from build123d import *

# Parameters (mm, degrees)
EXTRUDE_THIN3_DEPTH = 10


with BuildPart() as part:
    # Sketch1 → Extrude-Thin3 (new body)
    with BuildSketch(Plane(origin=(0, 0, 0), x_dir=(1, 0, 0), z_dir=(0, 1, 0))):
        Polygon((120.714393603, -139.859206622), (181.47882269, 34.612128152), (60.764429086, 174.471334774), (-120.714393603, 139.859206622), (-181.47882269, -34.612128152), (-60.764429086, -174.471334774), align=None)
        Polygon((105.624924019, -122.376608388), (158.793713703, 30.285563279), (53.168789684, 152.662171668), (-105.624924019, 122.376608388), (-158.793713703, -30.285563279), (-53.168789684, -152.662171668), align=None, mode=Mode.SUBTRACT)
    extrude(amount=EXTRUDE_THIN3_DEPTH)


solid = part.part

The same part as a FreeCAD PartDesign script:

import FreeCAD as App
import Part
import Sketcher
from FreeCAD import Vector
Q = App.Units.Quantity

doc = App.newDocument("Part")
params = doc.addObject("Spreadsheet::Sheet", "Params")
for row, (alias, value) in enumerate([
    ("sketch1_length", "184.75 mm"),
    ("sketch1_length2", "184.75 mm"),
    ("sketch1_length3", "184.75 mm"),
    ("sketch1_length4", "184.75 mm"),
    ("sketch1_length5", "184.75 mm"),
    ("pad1_length", "10 mm"),
], start=1):
    params.set(f"A{row}", alias)
    params.set(f"B{row}", "=" + value)
    params.setAlias(f"B{row}", alias)

body = doc.addObject("PartDesign::Body", "Body")

sketch1 = doc.addObject("Sketcher::SketchObject", "Sketch")
body.addObject(sketch1)
sketch1.AttachmentSupport = (doc.XZ_Plane, [""])
sketch1.MapMode = "FlatFace"
sketch1.addGeometry(Part.LineSegment(Vector(120.714394, 139.859207, 0), Vector(181.478823, -34.612128, 0)), False)
sketch1.addGeometry(Part.LineSegment(Vector(181.478823, -34.612128, 0), Vector(60.764429, -174.471335, 0)), False)
sketch1.addGeometry(Part.LineSegment(Vector(60.764429, -174.471335, 0), Vector(-120.714394, -139.859207, 0)), False)
sketch1.addGeometry(Part.LineSegment(Vector(-120.714394, -139.859207, 0), Vector(-181.478823, 34.612128, 0)), False)
sketch1.addGeometry(Part.LineSegment(Vector(-181.478823, 34.612128, 0), Vector(-60.764429, 174.471335, 0)), False)
sketch1.addGeometry(Part.LineSegment(Vector(-60.764429, 174.471335, 0), Vector(120.714394, 139.859207, 0)), False)
sketch1.addGeometry(Part.LineSegment(Vector(158.793714, -30.285563, 0), Vector(105.624924, 122.376608, 0)), False)
sketch1.addGeometry(Part.LineSegment(Vector(105.624924, 122.376608, 0), Vector(-53.16879, 152.662172, 0)), False)
sketch1.addGeometry(Part.LineSegment(Vector(-53.16879, 152.662172, 0), Vector(-158.793714, 30.285563, 0)), False)
sketch1.addGeometry(Part.LineSegment(Vector(-158.793714, 30.285563, 0), Vector(-105.624924, -122.376608, 0)), False)
sketch1.addGeometry(Part.LineSegment(Vector(-105.624924, -122.376608, 0), Vector(53.16879, -152.662172, 0)), False)
sketch1.addGeometry(Part.LineSegment(Vector(53.16879, -152.662172, 0), Vector(158.793714, -30.285563, 0)), False)
sketch1.addConstraint(Sketcher.Constraint("Coincident", 0, 2, 1, 1))
sketch1.addConstraint(Sketcher.Constraint("Coincident", 1, 2, 2, 1))
sketch1.addConstraint(Sketcher.Constraint("Coincident", 2, 2, 3, 1))
sketch1.addConstraint(Sketcher.Constraint("Coincident", 3, 2, 4, 1))
sketch1.addConstraint(Sketcher.Constraint("Coincident", 4, 2, 5, 1))
sketch1.addConstraint(Sketcher.Constraint("Coincident", 5, 2, 0, 1))
sketch1.addConstraint(Sketcher.Constraint("Coincident", 6, 2, 7, 1))
sketch1.addConstraint(Sketcher.Constraint("Coincident", 7, 2, 8, 1))
sketch1.addConstraint(Sketcher.Constraint("Coincident", 8, 2, 9, 1))
sketch1.addConstraint(Sketcher.Constraint("Coincident", 9, 2, 10, 1))
sketch1.addConstraint(Sketcher.Constraint("Coincident", 10, 2, 11, 1))
sketch1.addConstraint(Sketcher.Constraint("Coincident", 11, 2, 6, 1))
sketch1.addConstraint(Sketcher.Constraint("Distance", 0, Q("184.75 mm")))
sketch1.addConstraint(Sketcher.Constraint("Distance", 1, Q("184.75 mm")))
sketch1.addConstraint(Sketcher.Constraint("Distance", 2, Q("184.75 mm")))
sketch1.addConstraint(Sketcher.Constraint("Distance", 3, Q("184.75 mm")))
sketch1.addConstraint(Sketcher.Constraint("Distance", 4, Q("184.75 mm")))
sketch1.addConstraint(Sketcher.Constraint("Distance", 5, Q("184.75 mm")))
sketch1.addConstraint(Sketcher.Constraint("DistanceY", 6, 2, 5, 2, Q("17.482598 mm")))
sketch1.addConstraint(Sketcher.Constraint("DistanceX", 6, 2, 0, 2, Q("75.853899 mm")))
sketch1.addConstraint(Sketcher.Constraint("DistanceY", 2, 2, 9, 2, Q("17.482598 mm")))
sketch1.addConstraint(Sketcher.Constraint("DistanceX", 3, 2, 9, 2, Q("75.853899 mm")))
sketch1.addConstraint(Sketcher.Constraint("Distance", 6, Q("161.655989 mm")))
sketch1.addConstraint(Sketcher.Constraint("Distance", 7, Q("161.655989 mm")))
sketch1.addConstraint(Sketcher.Constraint("Distance", 8, Q("161.655989 mm")))
sketch1.addConstraint(Sketcher.Constraint("Distance", 9, Q("161.655989 mm")))
sketch1.addConstraint(Sketcher.Constraint("Distance", 10, Q("161.655989 mm")))
sketch1.addConstraint(Sketcher.Constraint("Distance", 11, Q("161.655989 mm")))
sketch1.addConstraint(Sketcher.Constraint("DistanceY", 0, 2, -1, 1, Q("34.612128 mm")))
sketch1.addConstraint(Sketcher.Constraint("DistanceX", -1, 1, 1, 2, Q("60.764429 mm")))
sketch1.addConstraint(Sketcher.Constraint("DistanceY", -1, 1, 3, 2, Q("34.612128 mm")))
sketch1.addConstraint(Sketcher.Constraint("DistanceX", 4, 2, -1, 1, Q("60.764429 mm")))
sketch1.addConstraint(Sketcher.Constraint("DistanceY", -1, 1, 6, 2, Q("122.376608 mm")))
sketch1.addConstraint(Sketcher.Constraint("DistanceX", 7, 2, -1, 1, Q("53.16879 mm")))
sketch1.addConstraint(Sketcher.Constraint("DistanceY", -1, 1, 7, 2, Q("152.662172 mm")))
sketch1.addConstraint(Sketcher.Constraint("DistanceX", -1, 1, 10, 2, Q("53.16879 mm")))
sketch1.setExpression("Constraints[12]", "Params.sketch1_length")
sketch1.setExpression("Constraints[13]", "Params.sketch1_length2")
sketch1.setExpression("Constraints[14]", "Params.sketch1_length3")
sketch1.setExpression("Constraints[15]", "Params.sketch1_length4")
sketch1.setExpression("Constraints[16]", "Params.sketch1_length5")
pad1 = doc.addObject("PartDesign::Pad", "Pad")
body.addObject(pad1)
pad1.Profile = sketch1
pad1.setExpression("Length", "Params.pad1_length")
pad1.Reversed = True

doc.recompute()
